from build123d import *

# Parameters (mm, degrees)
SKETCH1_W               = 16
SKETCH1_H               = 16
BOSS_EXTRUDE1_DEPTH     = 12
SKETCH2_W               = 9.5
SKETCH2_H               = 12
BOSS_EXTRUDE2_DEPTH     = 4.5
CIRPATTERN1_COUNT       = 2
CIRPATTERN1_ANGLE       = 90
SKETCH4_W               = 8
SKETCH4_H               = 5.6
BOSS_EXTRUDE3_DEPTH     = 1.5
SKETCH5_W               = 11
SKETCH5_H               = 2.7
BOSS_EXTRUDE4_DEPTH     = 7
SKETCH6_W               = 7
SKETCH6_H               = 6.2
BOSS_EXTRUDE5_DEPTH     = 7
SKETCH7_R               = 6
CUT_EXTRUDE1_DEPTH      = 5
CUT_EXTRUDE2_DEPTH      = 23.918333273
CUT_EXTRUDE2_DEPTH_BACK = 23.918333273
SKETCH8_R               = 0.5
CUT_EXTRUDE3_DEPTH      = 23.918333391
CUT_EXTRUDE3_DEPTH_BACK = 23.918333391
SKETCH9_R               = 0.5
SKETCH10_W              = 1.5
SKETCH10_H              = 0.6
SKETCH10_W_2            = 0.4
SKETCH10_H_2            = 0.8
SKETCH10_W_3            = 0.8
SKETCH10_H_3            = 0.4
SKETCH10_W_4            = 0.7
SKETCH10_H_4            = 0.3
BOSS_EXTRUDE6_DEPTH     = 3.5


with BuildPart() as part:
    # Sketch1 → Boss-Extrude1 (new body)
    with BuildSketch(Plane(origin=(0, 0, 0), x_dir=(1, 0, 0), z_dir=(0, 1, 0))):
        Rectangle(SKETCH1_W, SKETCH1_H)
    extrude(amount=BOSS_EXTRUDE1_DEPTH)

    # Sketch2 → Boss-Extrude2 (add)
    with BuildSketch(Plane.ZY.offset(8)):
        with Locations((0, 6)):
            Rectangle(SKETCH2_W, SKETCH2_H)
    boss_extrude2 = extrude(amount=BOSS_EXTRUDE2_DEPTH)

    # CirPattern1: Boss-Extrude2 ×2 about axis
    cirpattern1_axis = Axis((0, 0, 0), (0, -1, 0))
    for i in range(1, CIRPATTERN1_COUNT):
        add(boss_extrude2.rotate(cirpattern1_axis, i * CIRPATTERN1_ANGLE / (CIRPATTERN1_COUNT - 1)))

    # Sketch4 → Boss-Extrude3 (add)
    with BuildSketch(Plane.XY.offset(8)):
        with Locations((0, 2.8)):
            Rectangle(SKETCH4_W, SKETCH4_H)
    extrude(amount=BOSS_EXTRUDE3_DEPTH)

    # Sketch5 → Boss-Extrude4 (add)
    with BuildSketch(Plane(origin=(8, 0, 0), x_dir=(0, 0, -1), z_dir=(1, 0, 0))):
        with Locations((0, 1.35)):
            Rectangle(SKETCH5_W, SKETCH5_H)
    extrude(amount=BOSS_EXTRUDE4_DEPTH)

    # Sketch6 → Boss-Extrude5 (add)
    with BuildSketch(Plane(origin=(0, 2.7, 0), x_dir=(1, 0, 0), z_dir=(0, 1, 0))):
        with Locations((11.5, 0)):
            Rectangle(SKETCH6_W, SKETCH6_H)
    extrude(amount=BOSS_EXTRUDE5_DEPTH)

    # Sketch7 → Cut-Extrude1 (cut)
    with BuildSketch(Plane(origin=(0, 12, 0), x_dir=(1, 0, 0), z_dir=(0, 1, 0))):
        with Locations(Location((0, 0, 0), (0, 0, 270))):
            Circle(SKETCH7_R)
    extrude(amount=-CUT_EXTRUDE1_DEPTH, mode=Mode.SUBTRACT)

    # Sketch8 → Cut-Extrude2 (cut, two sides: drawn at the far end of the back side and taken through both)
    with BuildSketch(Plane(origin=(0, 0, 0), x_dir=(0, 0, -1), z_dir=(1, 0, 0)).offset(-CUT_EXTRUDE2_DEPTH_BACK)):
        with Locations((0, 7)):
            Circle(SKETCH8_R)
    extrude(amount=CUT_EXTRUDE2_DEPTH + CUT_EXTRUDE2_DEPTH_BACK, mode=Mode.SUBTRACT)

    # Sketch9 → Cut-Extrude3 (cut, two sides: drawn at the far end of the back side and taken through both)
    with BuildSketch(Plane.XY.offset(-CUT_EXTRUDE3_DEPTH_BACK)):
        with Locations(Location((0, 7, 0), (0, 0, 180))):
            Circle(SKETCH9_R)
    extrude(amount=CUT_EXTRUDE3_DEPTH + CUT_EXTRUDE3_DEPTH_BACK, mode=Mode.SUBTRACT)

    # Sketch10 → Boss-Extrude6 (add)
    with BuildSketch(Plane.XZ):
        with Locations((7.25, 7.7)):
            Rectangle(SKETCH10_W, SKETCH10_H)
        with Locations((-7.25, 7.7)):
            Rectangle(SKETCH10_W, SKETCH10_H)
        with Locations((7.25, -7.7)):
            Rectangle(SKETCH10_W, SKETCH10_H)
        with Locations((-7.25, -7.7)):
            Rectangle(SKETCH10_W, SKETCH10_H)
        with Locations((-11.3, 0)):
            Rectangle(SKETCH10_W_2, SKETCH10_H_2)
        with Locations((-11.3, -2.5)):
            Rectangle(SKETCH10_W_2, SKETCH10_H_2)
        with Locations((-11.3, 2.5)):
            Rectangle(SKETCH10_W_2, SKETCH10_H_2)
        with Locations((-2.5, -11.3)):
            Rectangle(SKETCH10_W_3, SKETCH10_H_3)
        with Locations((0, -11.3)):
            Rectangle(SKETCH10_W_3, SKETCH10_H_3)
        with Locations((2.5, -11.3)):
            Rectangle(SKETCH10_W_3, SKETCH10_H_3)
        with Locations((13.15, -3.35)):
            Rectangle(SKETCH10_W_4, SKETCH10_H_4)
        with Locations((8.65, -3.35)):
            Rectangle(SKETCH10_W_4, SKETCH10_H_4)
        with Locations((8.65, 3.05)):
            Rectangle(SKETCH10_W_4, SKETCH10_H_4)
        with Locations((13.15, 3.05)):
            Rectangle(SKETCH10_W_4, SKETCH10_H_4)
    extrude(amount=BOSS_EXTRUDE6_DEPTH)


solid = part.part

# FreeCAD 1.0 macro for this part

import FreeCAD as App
import Part
import Sketcher

V = App.Vector


def add_polygon(sketch, points):
    """Adds a closed chain of lines whose ends are joined by coincident constraints."""
    first, n = sketch.GeometryCount, len(points)
    for a, b in zip(points, points[1:] + points[:1]):
        sketch.addGeometry(Part.LineSegment(App.Vector(*a, 0), App.Vector(*b, 0)), False)
    for i in range(n):
        sketch.addConstraint(Sketcher.Constraint("Coincident", first + i, 2, first + (i + 1) % n, 1))

doc = App.newDocument("Part")
body = doc.addObject("PartDesign::Body", "Body")

sketch1 = body.newObject("Sketcher::SketchObject", "Sketch")
sketch1.AttachmentSupport = (doc.getObject("XZ_Plane"), [""])
sketch1.MapMode = "FlatFace"
add_polygon(sketch1, [(-8, -8), (-8, 8), (8, 8), (8, -8)])
sketch1.addConstraint([
    Sketcher.Constraint("Vertical", 0),
    Sketcher.Constraint("Horizontal", 1),
    Sketcher.Constraint("Vertical", 2),
    Sketcher.Constraint("Horizontal", 3),
    Sketcher.Constraint("Symmetric", 0, 2, 2, 2, -1, 1),
    Sketcher.Constraint("Equal", 3, 0),
    Sketcher.Constraint("DistanceX", 1, 1, 1, 2, 16.0),
])
pad1 = body.newObject("PartDesign::Pad", "Pad")
pad1.Profile = sketch1
pad1.Length = 12
pad1.Reversed = True

sketch2 = body.newObject("Sketcher::SketchObject", "Sketch001")
sketch2.AttachmentSupport = (doc.getObject("YZ_Plane"), [""])
sketch2.MapMode = "FlatFace"
sketch2.AttachmentOffset = App.Placement(V(0, 0, -8), App.Rotation())
add_polygon(sketch2, [(12, -5), (0, -5), (0, 5), (12, 5)])
sketch2.addConstraint([
    Sketcher.Constraint("Horizontal", 0),
    Sketcher.Constraint("Vertical", 1),
    Sketcher.Constraint("Horizontal", 2),
    Sketcher.Constraint("Vertical", 3),
    Sketcher.Constraint("Symmetric", 0, 2, 1, 2, -1, 1),
    Sketcher.Constraint("DistanceX", 0, 2, 0, 1, 12.0),
    Sketcher.Constraint("DistanceY", 1, 1, 1, 2, 9.5),
])
pad2 = body.newObject("PartDesign::Pad", "Pad001")
pad2.Profile = sketch2
pad2.Length = 4.5
pad2.Reversed = True
doc.recompute()

polarpattern = body.newObject("PartDesign::PolarPattern", "PolarPattern")
polarpattern.Originals = [pad2]
polarpattern.Axis = (doc.getObject("Y_Axis"), [""])
polarpattern.Angle = 90
polarpattern.Occurrences = 2
polarpattern.Reversed = True
body.Tip = polarpattern

sketch3 = body.newObject("Sketcher::SketchObject", "Sketch002")
sketch3.AttachmentSupport = (doc.getObject("XY_Plane"), [""])
sketch3.MapMode = "FlatFace"
sketch3.AttachmentOffset = App.Placement(V(0, 0, 8), App.Rotation())
add_polygon(sketch3, [(-4, 6), (-4, 0), (4, 0), (4, 6)])
sketch3.addConstraint([
    Sketcher.Constraint("Vertical", 0),
    Sketcher.Constraint("Horizontal", 1),
    Sketcher.Constraint("Vertical", 2),
    Sketcher.Constraint("Horizontal", 3),
    Sketcher.Constraint("Symmetric", 0, 2, 1, 2, -1, 1),
    Sketcher.Constraint("DistanceX", 1, 1, 1, 2, 8.0),
    Sketcher.Constraint("DistanceY", 0, 2, 0, 1, 5.6),
])
pad3 = body.newObject("PartDesign::Pad", "Pad002")
pad3.Profile = sketch3
pad3.Length = 1.5

sketch4 = body.newObject("Sketcher::SketchObject", "Sketch003")
sketch4.AttachmentSupport = (doc.getObject("YZ_Plane"), [""])
sketch4.MapMode = "FlatFace"
sketch4.AttachmentOffset = App.Placement(V(0, 0, 8), App.Rotation())
add_polygon(sketch4, [(2.7, 5.5), (0, 5.5), (0, -5.5), (2.7, -5.5)])
sketch4.addConstraint([
    Sketcher.Constraint("Horizontal", 0),
    Sketcher.Constraint("Vertical", 1),
    Sketcher.Constraint("Horizontal", 2),
    Sketcher.Constraint("Vertical", 3),
    Sketcher.Constraint("Symmetric", 0, 2, 1, 2, -1, 1),
    Sketcher.Constraint("DistanceY", 1, 2, 1, 1, 11.0),
    Sketcher.Constraint("DistanceX", 0, 2, 0, 1, 2.7),
])
pad4 = body.newObject("PartDesign::Pad", "Pad003")
pad4.Profile = sketch4
pad4.Length = 7

sketch5 = body.newObject("Sketcher::SketchObject", "Sketch004")
sketch5.AttachmentSupport = (doc.getObject("XZ_Plane"), [""])
sketch5.MapMode = "FlatFace"
sketch5.AttachmentOffset = App.Placement(V(0, 0, -2.7), App.Rotation())
add_polygon(sketch5, [(8, -3), (8, 3), (15, 3), (15, -3)])
sketch5.addConstraint([
    Sketcher.Constraint("Vertical", 0),
    Sketcher.Constraint("Horizontal", 1),
    Sketcher.Constraint("Vertical", 2),
    Sketcher.Constraint("Horizontal", 3),
    Sketcher.Constraint("DistanceX", 1, 1, 1, 2, 7.0),
    Sketcher.Constraint("DistanceY", 0, 1, 0, 2, 6.2),
    Sketcher.Constraint("DistanceX", -1, 1, 0, 2, 8.0),
    Sketcher.Constraint("DistanceY", -1, 1, 0, 2, 3.1),
])
pad5 = body.newObject("PartDesign::Pad", "Pad004")
pad5.Profile = sketch5
pad5.Length = 7
pad5.Reversed = True

sketch6 = body.newObject("Sketcher::SketchObject", "Sketch005")
sketch6.AttachmentSupport = (doc.getObject("XZ_Plane"), [""])
sketch6.MapMode = "FlatFace"
sketch6.AttachmentOffset = App.Placement(V(0, 0, -12), App.Rotation())
sketch6.addGeometry(Part.Circle(V(0, 0, 0), V(0, 0, 1), 6), False)
sketch6.addConstraint([
    Sketcher.Constraint("Coincident", 0, 3, -1, 1),
    Sketcher.Constraint("Diameter", 0, 12.0),
])
pocket1 = body.newObject("PartDesign::Pocket", "Pocket")
pocket1.Profile = sketch6
pocket1.Length = 5
pocket1.Reversed = True

sketch7 = body.newObject("Sketcher::SketchObject", "Sketch006")
sketch7.AttachmentSupport = (doc.getObject("YZ_Plane"), [""])
sketch7.MapMode = "FlatFace"
sketch7.addGeometry(Part.Circle(V(7, 0, 0), V(0, 0, 1), 0.5), False)
sketch7.addConstraint([
    Sketcher.Constraint("PointOnObject", 0, 3, -1),
    Sketcher.Constraint("Diameter", 0, 1.0),
    Sketcher.Constraint("DistanceX", -1, 1, 0, 3, 7.0),
])
pocket2 = body.newObject("PartDesign::Pocket", "Pocket001")
pocket2.Profile = sketch7
pocket2.Type = "ThroughAll"
pocket2.Midplane = True

sketch8 = body.newObject("Sketcher::SketchObject", "Sketch007")
sketch8.AttachmentSupport = (doc.getObject("XY_Plane"), [""])
sketch8.MapMode = "FlatFace"
sketch8.addGeometry(Part.Circle(V(0, 7, 0), V(0, 0, 1), 0.5), False)
sketch8.addConstraint([
    Sketcher.Constraint("PointOnObject", 0, 3, -2),
    Sketcher.Constraint("Diameter", 0, 1.0),
    Sketcher.Constraint("DistanceY", -1, 1, 0, 3, 7.0),
])
pocket3 = body.newObject("PartDesign::Pocket", "Pocket002")
pocket3.Profile = sketch8
pocket3.Type = "ThroughAll"
pocket3.Midplane = True

sketch9 = body.newObject("Sketcher::SketchObject", "Sketch008")
sketch9.AttachmentSupport = (doc.getObject("XZ_Plane"), [""])
sketch9.MapMode = "FlatFace"
add_polygon(sketch9, [(6.5, 8), (6.5, 7.4), (8, 7.4), (8, 8)])
add_polygon(sketch9, [(-8, 8), (-8, 7.4), (-6.5, 7.4), (-6.5, 8)])
add_polygon(sketch9, [(6.5, -7.4), (6.5, -8), (8, -8), (8, -7.4)])
add_polygon(sketch9, [(-8, -7.4), (-8, -8), (-6.5, -8), (-6.5, -7.4)])
add_polygon(sketch9, [(-11.5, 0.4), (-11.5, -0.4), (-11.1, -0.4), (-11.1, 0.4)])
add_polygon(sketch9, [(-11.5, -2.1), (-11.5, -2.9), (-11.1, -2.9), (-11.1, -2.1)])
add_polygon(sketch9, [(-11.5, 2.9), (-11.5, 2.1), (-11.1, 2.1), (-11.1, 2.9)])
add_polygon(sketch9, [(-2.9, -11.1), (-2.9, -11.5), (-2.1, -11.5), (-2.1, -11.1)])
add_polygon(sketch9, [(-0.4, -11.1), (-0.4, -11.5), (0.4, -11.5), (0.4, -11.1)])
add_polygon(sketch9, [(2.1, -11.1), (2.1, -11.5), (2.9, -11.5), (2.9, -11.1)])
add_polygon(sketch9, [(12.8, -3.2), (12.8, -3.5), (13.5, -3.5), (13.5, -3.2)])
add_polygon(sketch9, [(8.3, -3.2), (8.3, -3.5), (9, -3.5), (9, -3.2)])
add_polygon(sketch9, [(8.3, 3.2), (8.3, 2.9), (9, 2.9), (9, 3.2)])
add_polygon(sketch9, [(12.8, 3.2), (12.8, 2.9), (13.5, 2.9), (13.5, 3.2)])
sketch9.addConstraint([
    Sketcher.Constraint("Vertical", 0),
    Sketcher.Constraint("Horizontal", 1),
    Sketcher.Constraint("Vertical", 2),
    Sketcher.Constraint("Horizontal", 3),
    Sketcher.Constraint("Vertical", 4),
    Sketcher.Constraint("Horizontal", 5),
    Sketcher.Constraint("Vertical", 6),
    Sketcher.Constraint("Horizontal", 7),
    Sketcher.Constraint("Vertical", 8),
    Sketcher.Constraint("Horizontal", 9),
    Sketcher.Constraint("Vertical", 10),
    Sketcher.Constraint("Horizontal", 11),
    Sketcher.Constraint("Vertical", 12),
    Sketcher.Constraint("Horizontal", 13),
    Sketcher.Constraint("Vertical", 14),
    Sketcher.Constraint("Horizontal", 15),
    Sketcher.Constraint("Vertical", 16),
    Sketcher.Constraint("Horizontal", 17),
    Sketcher.Constraint("Vertical", 18),
    Sketcher.Constraint("Horizontal", 19),
    Sketcher.Constraint("Vertical", 20),
    Sketcher.Constraint("Horizontal", 21),
    Sketcher.Constraint("Vertical", 22),
    Sketcher.Constraint("Horizontal", 23),
    Sketcher.Constraint("Vertical", 24),
    Sketcher.Constraint("Horizontal", 25),
    Sketcher.Constraint("Vertical", 26),
    Sketcher.Constraint("Horizontal", 27),
    Sketcher.Constraint("Vertical", 28),
    Sketcher.Constraint("Horizontal", 29),
    Sketcher.Constraint("Vertical", 30),
    Sketcher.Constraint("Horizontal", 31),
    Sketcher.Constraint("Vertical", 32),
    Sketcher.Constraint("Horizontal", 33),
    Sketcher.Constraint("Vertical", 34),
    Sketcher.Constraint("Horizontal", 35),
    Sketcher.Constraint("Vertical", 36),
    Sketcher.Constraint("Horizontal", 37),
    Sketcher.Constraint("Vertical", 38),
    Sketcher.Constraint("Horizontal", 39),
    Sketcher.Constraint("Vertical", 40),
    Sketcher.Constraint("Horizontal", 41),
    Sketcher.Constraint("Vertical", 42),
    Sketcher.Constraint("Horizontal", 43),
    Sketcher.Constraint("Vertical", 44),
    Sketcher.Constraint("Horizontal", 45),
    Sketcher.Constraint("Vertical", 46),
    Sketcher.Constraint("Horizontal", 47),
    Sketcher.Constraint("Vertical", 48),
    Sketcher.Constraint("Horizontal", 49),
    Sketcher.Constraint("Vertical", 50),
    Sketcher.Constraint("Horizontal", 51),
    Sketcher.Constraint("Vertical", 52),
    Sketcher.Constraint("Horizontal", 53),
    Sketcher.Constraint("Vertical", 54),
    Sketcher.Constraint("Horizontal", 55),
    Sketcher.Constraint("Symmetric", 6, 2, 8, 2, -1, 1),
    Sketcher.Constraint("Symmetric", 4, 2, 10, 2, -1, 1),
    Sketcher.Constraint("Symmetric", 2, 2, 12, 2, -1, 1),
    Sketcher.Constraint("Symmetric", 0, 2, 14, 2, -1, 1),
    Sketcher.Constraint("Symmetric", 1, 2, 4, 2, -2),
    Sketcher.Constraint("Symmetric", 3, 2, 6, 2, -2),
    Sketcher.Constraint("Symmetric", 29, 2, 36, 2, -2),
    Sketcher.Constraint("Symmetric", 31, 2, 38, 2, -2),
    Sketcher.Constraint("Symmetric", 23, 2, 24, 2, -1),
    Sketcher.Constraint("Symmetric", 21, 2, 26, 2, -1),
    Sketcher.Constraint("Symmetric", 46, 2, 50, 2, -1),
    Sketcher.Constraint("Symmetric", 42, 2, 54, 2, -1),
    Sketcher.Constraint("Horizontal", 29, 2, 32, 2),
    Sketcher.Constraint("Horizontal", 31, 2, 34, 2),
    Sketcher.Constraint("Horizontal", 41, 2, 44, 2),
    Sketcher.Constraint("Horizontal", 43, 2, 46, 2),
    Sketcher.Constraint("Horizontal", 27, 2, 48, 2),
    Sketcher.Constraint("Horizontal", 49, 2, 52, 2),
    Sketcher.Constraint("Vertical", 19, 2, 20, 2),
    Sketcher.Constraint("Vertical", 18, 2, 21, 2),
    Sketcher.Constraint("Vertical", 47, 2, 48, 2),
    Sketcher.Constraint("Vertical", 43, 2, 52, 2),
    Sketcher.Constraint("Equal", 31, 33),
    Sketcher.Constraint("Equal", 43, 45),
    Sketcher.Constraint("Equal", 39, 16),
    Sketcher.Constraint("Equal", 18, 20),
    Sketcher.Constraint("Equal", 27, 28),
    Sketcher.Constraint("Equal", 46, 48),
    Sketcher.Constraint("DistanceX", 1, 1, 1, 2, 1.5),
    Sketcher.Constraint("DistanceX", 17, 1, 17, 2, 0.4),
    Sketcher.Constraint("DistanceX", 29, 1, 29, 2, 0.8),
    Sketcher.Constraint("DistanceX", 41, 1, 41, 2, 0.7),
    Sketcher.Constraint("DistanceY", 0, 2, 0, 1, 0.6),
    Sketcher.Constraint("DistanceY", 40, 2, 40, 1, 0.3),
    Sketcher.Constraint("DistanceX", -1, 1, 1, 2, 8.0),
    Sketcher.Constraint("DistanceY", -1, 1, 2, 2, 8.0),
    Sketcher.Constraint("DistanceX", -1, 1, 45, 2, 9.0),
    Sketcher.Constraint("DistanceY", 15, 2, 16, 2, 7.0),
    Sketcher.Constraint("DistanceX", 16, 2, 14, 2, 5.0),
    Sketcher.Constraint("DistanceX", 11, 2, 41, 2, 7.0),
    Sketcher.Constraint("DistanceY", 20, 2, -1, 1, 2.9),
    Sketcher.Constraint("DistanceX", 28, 2, -1, 1, 2.9),
    Sketcher.Constraint("DistanceY", 28, 2, -1, 1, 11.5),
    Sketcher.Constraint("DistanceX", 32, 2, -1, 1, 0.4),
])
pad6 = body.newObject("PartDesign::Pad", "Pad005")
pad6.Profile = sketch9
pad6.Length = 3.5

doc.recompute()
